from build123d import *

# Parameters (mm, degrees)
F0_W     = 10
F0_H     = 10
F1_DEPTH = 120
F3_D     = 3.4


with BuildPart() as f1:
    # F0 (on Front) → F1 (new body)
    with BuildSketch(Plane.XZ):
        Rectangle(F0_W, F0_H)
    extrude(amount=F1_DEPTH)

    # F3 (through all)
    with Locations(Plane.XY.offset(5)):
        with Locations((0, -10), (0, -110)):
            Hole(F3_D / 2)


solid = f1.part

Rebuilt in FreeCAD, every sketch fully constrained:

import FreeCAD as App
import Part
import Sketcher
from FreeCAD import Vector
Q = App.Units.Quantity


def add_polygon(sketch, points):
    """Adds a closed chain of lines whose ends are joined by coincident constraints."""
    first, n = sketch.GeometryCount, len(points)
    for a, b in zip(points, points[1:] + points[:1]):
        sketch.addGeometry(Part.LineSegment(App.Vector(*a, 0), App.Vector(*b, 0)), False)
    for i in range(n):
        sketch.addConstraint(Sketcher.Constraint("Coincident", first + i, 2, first + (i + 1) % n, 1))

doc = App.newDocument("Part")
params = doc.addObject("Spreadsheet::Sheet", "Params")
for row, (alias, value) in enumerate([
    ("sketch1_width", "10 mm"),
    ("pad1_length", "120 mm"),
    ("sketch2_diameter", "3.4 mm"),
    ("hole_diameter", "3.4 mm"),
], start=1):
    params.set(f"A{row}", alias)
    params.set(f"B{row}", "=" + value)
    params.setAlias(f"B{row}", alias)

body = doc.addObject("PartDesign::Body", "Body")

sketch1 = body.newObject("Sketcher::SketchObject", "Sketch")
sketch1.AttachmentSupport = (doc.getObject("XZ_Plane"), [""])
sketch1.MapMode = "FlatFace"
add_polygon(sketch1, [(-5, 5), (-5, -5), (5, -5), (5, 5)])
sketch1.addConstraint(Sketcher.Constraint("Vertical", 0))
sketch1.addConstraint(Sketcher.Constraint("Horizontal", 1))
sketch1.addConstraint(Sketcher.Constraint("Vertical", 2))
sketch1.addConstraint(Sketcher.Constraint("Horizontal", 3))
sketch1.addConstraint(Sketcher.Constraint("Symmetric", 0, 2, 2, 2, -1, 1))
sketch1.addConstraint(Sketcher.Constraint("Equal", 3, 0))
sketch1.addConstraint(Sketcher.Constraint("DistanceX", 1, 1, 1, 2, Q("10 mm")))
sketch1.setExpression("Constraints[10]", "Params.sketch1_width")
pad1 = body.newObject("PartDesign::Pad", "Pad")
pad1.Profile = sketch1
pad1.setExpression("Length", "Params.pad1_length")

sketch2 = body.newObject("Sketcher::SketchObject", "Sketch001")
sketch2.AttachmentSupport = (doc.getObject("XY_Plane"), [""])
sketch2.MapMode = "FlatFace"
sketch2.AttachmentOffset = App.Placement(Vector(0, 0, 5), App.Rotation())
sketch2.addGeometry(Part.Circle(Vector(0, -10, 0), Vector(0, 0, 1), 1.7), False)
sketch2.addGeometry(Part.Circle(Vector(0, -110, 0), Vector(0, 0, 1), 1.7), False)
sketch2.addConstraint(Sketcher.Constraint("Equal", 0, 1))
sketch2.addConstraint(Sketcher.Constraint("PointOnObject", 0, 3, -2))
sketch2.addConstraint(Sketcher.Constraint("PointOnObject", 1, 3, -2))
sketch2.addConstraint(Sketcher.Constraint("Diameter", 0, Q("3.4 mm")))
sketch2.addConstraint(Sketcher.Constraint("DistanceY", 0, 3, -1, 1, Q("10 mm")))
sketch2.addConstraint(Sketcher.Constraint("DistanceY", 1, 3, -1, 1, Q("110 mm")))
sketch2.setExpression("Constraints[3]", "Params.sketch2_diameter")
doc.recompute()
hole = body.newObject("PartDesign::Hole", "Hole")
hole.Profile = sketch2
hole.ThreadType = "None"
hole.setExpression("Diameter", "Params.hole_diameter")
hole.DepthType = "ThroughAll"

doc.recompute()
